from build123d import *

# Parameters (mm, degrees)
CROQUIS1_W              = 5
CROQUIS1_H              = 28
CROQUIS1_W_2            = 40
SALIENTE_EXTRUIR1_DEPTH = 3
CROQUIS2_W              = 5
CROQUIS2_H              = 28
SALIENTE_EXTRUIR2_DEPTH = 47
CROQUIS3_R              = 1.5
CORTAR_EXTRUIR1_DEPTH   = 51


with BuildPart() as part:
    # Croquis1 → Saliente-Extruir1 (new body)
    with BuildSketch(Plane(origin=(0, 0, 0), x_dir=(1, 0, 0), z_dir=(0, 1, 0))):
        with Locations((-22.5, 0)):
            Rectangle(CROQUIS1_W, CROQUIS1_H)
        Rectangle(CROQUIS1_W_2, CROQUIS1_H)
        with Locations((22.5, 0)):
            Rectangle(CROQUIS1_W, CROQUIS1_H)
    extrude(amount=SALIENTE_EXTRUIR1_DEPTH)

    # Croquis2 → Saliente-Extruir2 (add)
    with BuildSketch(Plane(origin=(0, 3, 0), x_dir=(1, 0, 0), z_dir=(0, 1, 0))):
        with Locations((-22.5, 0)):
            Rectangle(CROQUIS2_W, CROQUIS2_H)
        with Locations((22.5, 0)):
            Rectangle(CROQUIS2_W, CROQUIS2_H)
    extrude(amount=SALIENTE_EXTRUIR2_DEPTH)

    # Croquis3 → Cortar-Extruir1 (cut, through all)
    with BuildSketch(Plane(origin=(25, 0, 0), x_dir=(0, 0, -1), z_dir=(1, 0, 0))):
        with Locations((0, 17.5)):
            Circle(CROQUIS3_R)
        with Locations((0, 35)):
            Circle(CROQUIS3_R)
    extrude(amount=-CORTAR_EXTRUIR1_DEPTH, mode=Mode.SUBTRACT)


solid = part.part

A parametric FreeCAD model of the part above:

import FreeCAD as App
import Part
import Sketcher
from FreeCAD import Vector


def add_polygon(sketch, points):
    """Adds a closed chain of lines whose ends are joined by coincident constraints."""
    first, n = sketch.GeometryCount, len(points)
    for a, b in zip(points, points[1:] + points[:1]):
        sketch.addGeometry(Part.LineSegment(App.Vector(*a, 0), App.Vector(*b, 0)), False)
    for i in range(n):
        sketch.addConstraint(Sketcher.Constraint("Coincident", first + i, 2, first + (i + 1) % n, 1))

doc = App.newDocument("Part")
body = doc.addObject("PartDesign::Body", "Body")

# Sketch on XZ plane
sketch1 = body.newObject("Sketcher::SketchObject", "Sketch")
sketch1.AttachmentSupport = (doc.getObject("XZ_Plane"), [""])
sketch1.MapMode = "FlatFace"
add_polygon(sketch1, [(-25, -14), (-25, 14), (25, 14), (25, -14)])  # lines 0-3
sketch1.addConstraint([
    Sketcher.Constraint("Vertical", 0),
    Sketcher.Constraint("Horizontal", 1),
    Sketcher.Constraint("Vertical", 2),
    Sketcher.Constraint("Horizontal", 3),
    Sketcher.Constraint("Symmetric", 0, 2, 2, 2, -1, 1),
    Sketcher.Constraint("DistanceX", 1, 1, 1, 2, 50.0),
    Sketcher.Constraint("DistanceY", 0, 1, 0, 2, 28.0),
])
pad1 = body.newObject("PartDesign::Pad", "Pad")
pad1.Profile = sketch1
pad1.Length = 3
pad1.Reversed = True

# Sketch on XZ plane
sketch2 = body.newObject("Sketcher::SketchObject", "Sketch001")
sketch2.AttachmentSupport = (doc.getObject("XZ_Plane"), [""])
sketch2.MapMode = "FlatFace"
sketch2.AttachmentOffset = App.Placement(Vector(0, 0, -3), App.Rotation())
add_polygon(sketch2, [(-25, -14), (-25, 14), (-20, 14), (-20, -14)])  # lines 0-3
add_polygon(sketch2, [(20, -14), (20, 14), (25, 14), (25, -14)])  # lines 4-7
sketch2.addConstraint([
    Sketcher.Constraint("Vertical", 0),
    Sketcher.Constraint("Horizontal", 1),
    Sketcher.Constraint("Vertical", 2),
    Sketcher.Constraint("Horizontal", 3),
    Sketcher.Constraint("Vertical", 4),
    Sketcher.Constraint("Horizontal", 5),
    Sketcher.Constraint("Vertical", 6),
    Sketcher.Constraint("Horizontal", 7),
    Sketcher.Constraint("Symmetric", 2, 2, 4, 2, -1, 1),
    Sketcher.Constraint("Symmetric", 0, 2, 6, 2, -1, 1),
    Sketcher.Constraint("Horizontal", 1, 2, 4, 2),
    Sketcher.Constraint("DistanceX", 1, 1, 1, 2, 5.0),
    Sketcher.Constraint("DistanceY", 0, 1, 0, 2, 28.0),
    Sketcher.Constraint("DistanceX", 0, 2, -1, 1, 25.0),
])
pad2 = body.newObject("PartDesign::Pad", "Pad001")
pad2.Profile = sketch2
pad2.Length = 47
pad2.Reversed = True

# Sketch on YZ plane
sketch3 = body.newObject("Sketcher::SketchObject", "Sketch002")
sketch3.AttachmentSupport = (doc.getObject("YZ_Plane"), [""])
sketch3.MapMode = "FlatFace"
sketch3.AttachmentOffset = App.Placement(Vector(0, 0, 25), App.Rotation())
sketch3.addGeometry([
    Part.Circle(Vector(17.5, 0, 0), Vector(0, 0, 1), 1.5),
    Part.Circle(Vector(35, 0, 0), Vector(0, 0, 1), 1.5),
], False)
sketch3.addConstraint([
    Sketcher.Constraint("Equal", 0, 1),
    Sketcher.Constraint("PointOnObject", 0, 3, -1),
    Sketcher.Constraint("PointOnObject", 1, 3, -1),
    Sketcher.Constraint("Diameter", 0, 3.0),
    Sketcher.Constraint("DistanceX", -1, 1, 1, 3, 35.0),
    Sketcher.Constraint("DistanceX", -1, 1, 0, 3, 17.5),
])
pocket1 = body.newObject("PartDesign::Pocket", "Pocket")
pocket1.Profile = sketch3
pocket1.Type = "ThroughAll"

doc.recompute()
